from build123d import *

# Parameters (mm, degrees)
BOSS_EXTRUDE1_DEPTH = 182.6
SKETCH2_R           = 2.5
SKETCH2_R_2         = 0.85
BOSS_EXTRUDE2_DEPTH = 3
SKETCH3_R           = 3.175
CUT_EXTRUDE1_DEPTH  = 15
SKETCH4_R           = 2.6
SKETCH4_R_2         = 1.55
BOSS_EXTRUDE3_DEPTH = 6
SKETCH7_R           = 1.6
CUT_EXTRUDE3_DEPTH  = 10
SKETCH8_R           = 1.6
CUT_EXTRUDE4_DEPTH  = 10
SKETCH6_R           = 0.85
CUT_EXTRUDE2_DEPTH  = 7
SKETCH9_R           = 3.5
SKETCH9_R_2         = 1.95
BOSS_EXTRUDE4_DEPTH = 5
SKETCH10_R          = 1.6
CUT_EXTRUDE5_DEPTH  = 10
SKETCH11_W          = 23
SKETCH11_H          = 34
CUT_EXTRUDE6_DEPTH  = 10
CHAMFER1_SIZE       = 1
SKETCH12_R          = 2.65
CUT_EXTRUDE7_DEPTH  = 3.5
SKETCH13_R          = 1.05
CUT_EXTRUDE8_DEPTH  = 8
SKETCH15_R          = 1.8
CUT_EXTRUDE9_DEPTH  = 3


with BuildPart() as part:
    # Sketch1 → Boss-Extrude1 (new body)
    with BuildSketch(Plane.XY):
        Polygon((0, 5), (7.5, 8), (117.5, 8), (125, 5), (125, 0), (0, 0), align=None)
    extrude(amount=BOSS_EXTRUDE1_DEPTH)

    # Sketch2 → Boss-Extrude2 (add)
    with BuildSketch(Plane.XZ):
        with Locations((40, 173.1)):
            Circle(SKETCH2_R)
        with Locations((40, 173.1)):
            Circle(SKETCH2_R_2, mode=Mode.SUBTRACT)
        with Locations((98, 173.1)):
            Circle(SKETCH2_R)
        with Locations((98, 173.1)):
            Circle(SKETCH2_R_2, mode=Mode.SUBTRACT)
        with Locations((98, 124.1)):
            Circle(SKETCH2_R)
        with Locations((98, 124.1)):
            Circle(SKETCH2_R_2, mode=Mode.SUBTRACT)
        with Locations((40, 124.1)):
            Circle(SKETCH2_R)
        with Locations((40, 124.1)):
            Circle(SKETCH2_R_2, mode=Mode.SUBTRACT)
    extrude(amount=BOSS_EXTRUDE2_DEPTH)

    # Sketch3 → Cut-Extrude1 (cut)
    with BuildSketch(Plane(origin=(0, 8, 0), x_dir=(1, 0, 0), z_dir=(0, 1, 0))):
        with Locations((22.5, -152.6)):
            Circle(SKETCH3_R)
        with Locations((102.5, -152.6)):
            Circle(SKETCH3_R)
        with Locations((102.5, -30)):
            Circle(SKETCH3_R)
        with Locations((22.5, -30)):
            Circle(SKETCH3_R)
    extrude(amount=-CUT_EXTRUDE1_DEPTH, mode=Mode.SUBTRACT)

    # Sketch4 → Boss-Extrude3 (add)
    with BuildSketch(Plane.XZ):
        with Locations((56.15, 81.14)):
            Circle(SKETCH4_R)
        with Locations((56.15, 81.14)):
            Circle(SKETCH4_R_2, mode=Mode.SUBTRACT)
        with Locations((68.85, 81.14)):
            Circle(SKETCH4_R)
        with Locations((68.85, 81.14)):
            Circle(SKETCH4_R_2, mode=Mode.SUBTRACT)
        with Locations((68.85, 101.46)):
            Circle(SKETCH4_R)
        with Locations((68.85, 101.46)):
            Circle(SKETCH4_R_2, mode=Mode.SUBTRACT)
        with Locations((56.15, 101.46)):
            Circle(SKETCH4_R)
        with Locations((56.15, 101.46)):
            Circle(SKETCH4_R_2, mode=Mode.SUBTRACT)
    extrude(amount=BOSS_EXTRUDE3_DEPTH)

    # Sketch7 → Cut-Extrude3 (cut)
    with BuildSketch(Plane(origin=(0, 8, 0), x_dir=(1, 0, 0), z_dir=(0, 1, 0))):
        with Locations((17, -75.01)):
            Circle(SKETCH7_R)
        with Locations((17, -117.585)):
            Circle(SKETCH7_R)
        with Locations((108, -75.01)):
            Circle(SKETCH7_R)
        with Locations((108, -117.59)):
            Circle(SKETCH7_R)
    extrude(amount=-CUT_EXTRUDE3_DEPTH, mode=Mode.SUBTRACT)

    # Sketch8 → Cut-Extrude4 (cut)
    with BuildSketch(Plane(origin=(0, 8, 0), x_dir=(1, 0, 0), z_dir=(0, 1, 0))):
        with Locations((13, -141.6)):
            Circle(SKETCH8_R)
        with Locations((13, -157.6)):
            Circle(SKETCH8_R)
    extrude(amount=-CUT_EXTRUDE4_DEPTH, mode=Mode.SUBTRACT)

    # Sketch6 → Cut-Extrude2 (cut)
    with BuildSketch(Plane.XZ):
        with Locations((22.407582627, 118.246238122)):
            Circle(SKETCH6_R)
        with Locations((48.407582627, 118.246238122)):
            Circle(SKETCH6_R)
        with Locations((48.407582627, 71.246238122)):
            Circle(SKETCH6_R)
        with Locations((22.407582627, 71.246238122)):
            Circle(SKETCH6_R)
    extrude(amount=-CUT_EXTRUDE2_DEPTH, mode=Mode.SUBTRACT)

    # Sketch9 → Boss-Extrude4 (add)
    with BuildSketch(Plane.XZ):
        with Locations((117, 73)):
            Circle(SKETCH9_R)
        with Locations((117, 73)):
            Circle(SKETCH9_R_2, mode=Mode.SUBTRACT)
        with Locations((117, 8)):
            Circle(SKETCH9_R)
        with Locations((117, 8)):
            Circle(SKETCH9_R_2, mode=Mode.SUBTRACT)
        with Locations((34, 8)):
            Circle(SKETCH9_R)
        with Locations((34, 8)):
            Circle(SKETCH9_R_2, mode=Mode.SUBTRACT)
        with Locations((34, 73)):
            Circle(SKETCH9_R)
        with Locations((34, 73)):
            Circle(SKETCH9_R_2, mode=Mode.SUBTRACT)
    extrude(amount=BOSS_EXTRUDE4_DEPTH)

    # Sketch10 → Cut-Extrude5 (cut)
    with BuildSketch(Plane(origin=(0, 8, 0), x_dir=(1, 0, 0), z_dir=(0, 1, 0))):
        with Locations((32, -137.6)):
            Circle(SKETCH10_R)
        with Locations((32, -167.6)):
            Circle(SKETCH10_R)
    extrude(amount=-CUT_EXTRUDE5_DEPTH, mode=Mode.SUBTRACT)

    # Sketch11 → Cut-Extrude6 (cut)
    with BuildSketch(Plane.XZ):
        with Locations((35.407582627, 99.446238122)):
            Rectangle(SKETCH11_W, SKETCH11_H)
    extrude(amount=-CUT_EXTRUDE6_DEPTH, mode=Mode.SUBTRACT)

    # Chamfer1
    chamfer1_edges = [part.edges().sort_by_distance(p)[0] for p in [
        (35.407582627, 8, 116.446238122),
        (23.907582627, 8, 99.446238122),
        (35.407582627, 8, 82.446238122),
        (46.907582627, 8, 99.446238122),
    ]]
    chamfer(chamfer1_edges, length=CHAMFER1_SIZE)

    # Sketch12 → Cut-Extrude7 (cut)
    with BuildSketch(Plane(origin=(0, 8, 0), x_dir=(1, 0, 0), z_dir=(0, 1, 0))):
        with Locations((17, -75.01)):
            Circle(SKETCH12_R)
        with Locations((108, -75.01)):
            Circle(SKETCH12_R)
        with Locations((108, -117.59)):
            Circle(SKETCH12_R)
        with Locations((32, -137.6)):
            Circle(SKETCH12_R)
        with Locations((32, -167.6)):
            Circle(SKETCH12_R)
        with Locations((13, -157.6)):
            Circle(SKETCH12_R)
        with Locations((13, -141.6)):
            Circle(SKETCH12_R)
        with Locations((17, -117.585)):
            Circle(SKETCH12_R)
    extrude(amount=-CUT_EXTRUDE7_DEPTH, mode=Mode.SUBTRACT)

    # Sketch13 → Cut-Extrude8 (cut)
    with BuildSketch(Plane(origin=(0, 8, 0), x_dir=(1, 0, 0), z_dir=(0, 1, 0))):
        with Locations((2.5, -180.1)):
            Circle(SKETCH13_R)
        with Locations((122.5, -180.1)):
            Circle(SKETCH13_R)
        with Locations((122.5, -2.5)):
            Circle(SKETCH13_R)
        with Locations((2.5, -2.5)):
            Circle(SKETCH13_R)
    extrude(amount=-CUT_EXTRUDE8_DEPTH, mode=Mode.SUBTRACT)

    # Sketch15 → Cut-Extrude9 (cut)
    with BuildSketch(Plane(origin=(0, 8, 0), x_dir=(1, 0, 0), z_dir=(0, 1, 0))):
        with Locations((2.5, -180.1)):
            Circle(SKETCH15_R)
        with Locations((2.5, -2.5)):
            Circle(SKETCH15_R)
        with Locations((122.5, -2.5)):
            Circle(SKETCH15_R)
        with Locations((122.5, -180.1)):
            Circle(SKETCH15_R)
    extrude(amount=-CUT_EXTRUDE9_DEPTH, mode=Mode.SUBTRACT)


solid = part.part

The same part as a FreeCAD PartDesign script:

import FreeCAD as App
import Part
import Sketcher
Q = App.Units.Quantity


def edges_at(feature, points):
    """Names of the edges that pass closest to the given points."""
    edges = feature.Shape.Edges
    near = lambda p: min(range(len(edges)), key=lambda i: edges[i].distToShape(Part.Vertex(*p))[0])
    return sorted({f"Edge{near(p) + 1}" for p in points})


def add_polygon(sketch, points):
    """Adds a closed chain of lines whose ends are joined by coincident constraints."""
    first, n = sketch.GeometryCount, len(points)
    for a, b in zip(points, points[1:] + points[:1]):
        sketch.addGeometry(Part.LineSegment(App.Vector(*a, 0), App.Vector(*b, 0)), False)
    for i in range(n):
        sketch.addConstraint(Sketcher.Constraint("Coincident", first + i, 2, first + (i + 1) % n, 1))

doc = App.newDocument("Part")
params = doc.addObject("Spreadsheet::Sheet", "Params")
for row, (alias, value) in enumerate([
    ("sketch1_width", "125 mm"),
    ("sketch1_width2", "110 mm"),
    ("sketch1_height", "5 mm"),
    ("pad1_length", "182.6 mm"),
    ("sketch2_diameter", "5 mm"),
    ("sketch2_diameter2", "1.7 mm"),
    ("pad2_length", "3 mm"),
    ("sketch3_diameter", "6.35 mm"),
    ("pocket1_length", "15 mm"),
    ("sketch4_diameter", "5.2 mm"),
    ("sketch4_diameter2", "3.1 mm"),
    ("pad3_length", "6 mm"),
    ("sketch5_diameter", "3.2 mm"),
    ("pocket2_length", "10 mm"),
    ("sketch6_diameter", "3.2 mm"),
    ("pocket3_length", "10 mm"),
    ("sketch7_diameter", "1.7 mm"),
    ("pocket4_length", "7 mm"),
    ("sketch8_diameter", "7 mm"),
    ("sketch8_diameter2", "3.9 mm"),
    ("pad4_length", "5 mm"),
    ("sketch9_diameter", "3.2 mm"),
    ("pocket5_length", "10 mm"),
    ("sketch10_width", "23 mm"),
    ("sketch10_height", "34 mm"),
    ("pocket6_length", "10 mm"),
    ("chamfer_size", "1 mm"),
    ("sketch11_diameter", "5.3 mm"),
    ("pocket7_length", "3.5 mm"),
    ("sketch12_diameter", "2.1 mm"),
    ("pocket8_length", "8 mm"),
    ("sketch13_diameter", "3.6 mm"),
    ("pocket9_length", "3 mm"),
], start=1):
    params.set(f"A{row}", alias)
    params.set(f"B{row}", "=" + value)
    params.setAlias(f"B{row}", alias)

body = doc.addObject("PartDesign::Body", "Body")

# Sketch on XY plane
sketch1 = body.newObject("Sketcher::SketchObject", "Sketch")
sketch1.AttachmentSupport = (doc.getObject("XY_Plane"), [""])
sketch1.MapMode = "FlatFace"
add_polygon(sketch1, [(7.5, 8), (0, 5), (0, 0), (125, 0), (125, 5), (117.5, 8)])  # lines 0-5
sketch1.addConstraint(Sketcher.Constraint("Vertical", 1))
sketch1.addConstraint(Sketcher.Constraint("Horizontal", 2))
sketch1.addConstraint(Sketcher.Constraint("Vertical", 3))
sketch1.addConstraint(Sketcher.Constraint("Horizontal", 5))
sketch1.addConstraint(Sketcher.Constraint("Coincident", 1, 2, -1, 1))
sketch1.addConstraint(Sketcher.Constraint("Horizontal", 0, 2, 3, 2))
sketch1.addConstraint(Sketcher.Constraint("Equal", 0, 4))
sketch1.addConstraint(Sketcher.Constraint("DistanceX", 2, 1, 2, 2, Q("125 mm")))
sketch1.addConstraint(Sketcher.Constraint("DistanceX", 5, 2, 5, 1, Q("110 mm")))
sketch1.addConstraint(Sketcher.Constraint("DistanceY", 1, 2, 1, 1, Q("5 mm")))
sketch1.addConstraint(Sketcher.Constraint("DistanceY", -1, 1, 4, 2, Q("8 mm")))
sketch1.setExpression("Constraints[13]", "Params.sketch1_width")
sketch1.setExpression("Constraints[14]", "Params.sketch1_width2")
sketch1.setExpression("Constraints[15]", "Params.sketch1_height")
pad1 = body.newObject("PartDesign::Pad", "Pad")
pad1.Profile = sketch1
pad1.setExpression("Length", "Params.pad1_length")

# Sketch on XZ plane
sketch2 = body.newObject("Sketcher::SketchObject", "Sketch001")
sketch2.AttachmentSupport = (doc.getObject("XZ_Plane"), [""])
sketch2.MapMode = "FlatFace"
sketch2.addGeometry(Part.Circle(App.Vector(40, 173.1, 0), App.Vector(0, 0, 1), 2.5), False)
sketch2.addGeometry(Part.Circle(App.Vector(40, 173.1, 0), App.Vector(0, 0, 1), 0.85), False)
sketch2.addGeometry(Part.Circle(App.Vector(98, 173.1, 0), App.Vector(0, 0, 1), 2.5), False)
sketch2.addGeometry(Part.Circle(App.Vector(98, 173.1, 0), App.Vector(0, 0, 1), 0.85), False)
sketch2.addGeometry(Part.Circle(App.Vector(98, 124.1, 0), App.Vector(0, 0, 1), 2.5), False)
sketch2.addGeometry(Part.Circle(App.Vector(98, 124.1, 0), App.Vector(0, 0, 1), 0.85), False)
sketch2.addGeometry(Part.Circle(App.Vector(40, 124.1, 0), App.Vector(0, 0, 1), 2.5), False)
sketch2.addGeometry(Part.Circle(App.Vector(40, 124.1, 0), App.Vector(0, 0, 1), 0.85), False)
sketch2.addConstraint(Sketcher.Constraint("Coincident", 1, 3, 0, 3))
sketch2.addConstraint(Sketcher.Constraint("Coincident", 3, 3, 2, 3))
sketch2.addConstraint(Sketcher.Constraint("Coincident", 5, 3, 4, 3))
sketch2.addConstraint(Sketcher.Constraint("Coincident", 7, 3, 6, 3))
sketch2.addConstraint(Sketcher.Constraint("Equal", 0, 2))
sketch2.addConstraint(Sketcher.Constraint("Equal", 1, 3))
sketch2.addConstraint(Sketcher.Constraint("Equal", 2, 4))
sketch2.addConstraint(Sketcher.Constraint("Equal", 3, 5))
sketch2.addConstraint(Sketcher.Constraint("Equal", 4, 6))
sketch2.addConstraint(Sketcher.Constraint("Equal", 5, 7))
sketch2.addConstraint(Sketcher.Constraint("Horizontal", 1, 3, 2, 3))
sketch2.addConstraint(Sketcher.Constraint("Horizontal", 5, 3, 6, 3))
sketch2.addConstraint(Sketcher.Constraint("Vertical", 3, 3, 4, 3))
sketch2.addConstraint(Sketcher.Constraint("Vertical", 1, 3, 6, 3))
sketch2.addConstraint(Sketcher.Constraint("Diameter", 0, Q("5 mm")))
sketch2.addConstraint(Sketcher.Constraint("Diameter", 1, Q("1.7 mm")))
sketch2.addConstraint(Sketcher.Constraint("DistanceX", -1, 1, 0, 3, Q("40 mm")))
sketch2.addConstraint(Sketcher.Constraint("DistanceX", -1, 1, 2, 3, Q("98 mm")))
sketch2.addConstraint(Sketcher.Constraint("DistanceY", 4, 3, 2, 3, Q("49 mm")))
sketch2.addConstraint(Sketcher.Constraint("DistanceY", -1, 1, 0, 3, Q("173.1 mm")))
sketch2.setExpression("Constraints[14]", "Params.sketch2_diameter")
sketch2.setExpression("Constraints[15]", "Params.sketch2_diameter2")
pad2 = body.newObject("PartDesign::Pad", "Pad001")
pad2.Profile = sketch2
pad2.setExpression("Length", "Params.pad2_length")

# Sketch on XZ plane
sketch3 = body.newObject("Sketcher::SketchObject", "Sketch002")
sketch3.AttachmentSupport = (doc.getObject("XZ_Plane"), [""])
sketch3.MapMode = "FlatFace"
sketch3.AttachmentOffset = App.Placement(App.Vector(0, 0, -8), App.Rotation())
sketch3.addGeometry(Part.Circle(App.Vector(22.5, 152.6, 0), App.Vector(0, 0, 1), 3.175), False)
sketch3.addGeometry(Part.Circle(App.Vector(102.5, 152.6, 0), App.Vector(0, 0, 1), 3.175), False)
sketch3.addGeometry(Part.Circle(App.Vector(102.5, 30, 0), App.Vector(0, 0, 1), 3.175), False)
sketch3.addGeometry(Part.Circle(App.Vector(22.5, 30, 0), App.Vector(0, 0, 1), 3.175), False)
sketch3.addConstraint(Sketcher.Constraint("Equal", 0, 1))
sketch3.addConstraint(Sketcher.Constraint("Equal", 1, 2))
sketch3.addConstraint(Sketcher.Constraint("Equal", 2, 3))
sketch3.addConstraint(Sketcher.Constraint("Horizontal", 0, 3, 1, 3))
sketch3.addConstraint(Sketcher.Constraint("Horizontal", 2, 3, 3, 3))
sketch3.addConstraint(Sketcher.Constraint("Vertical", 1, 3, 2, 3))
sketch3.addConstraint(Sketcher.Constraint("Vertical", 0, 3, 3, 3))
sketch3.addConstraint(Sketcher.Constraint("Diameter", 0, Q("6.35 mm")))
sketch3.addConstraint(Sketcher.Constraint("DistanceY", -1, 1, 2, 3, Q("30 mm")))
sketch3.addConstraint(Sketcher.Constraint("DistanceX", 0, 3, 1, 3, Q("80 mm")))
sketch3.addConstraint(Sketcher.Constraint("DistanceX", -1, 1, 0, 3, Q("22.5 mm")))
sketch3.addConstraint(Sketcher.Constraint("DistanceY", -1, 1, 0, 3, Q("152.6 mm")))
sketch3.setExpression("Constraints[7]", "Params.sketch3_diameter")
pocket1 = body.newObject("PartDesign::Pocket", "Pocket")
pocket1.Profile = sketch3
pocket1.setExpression("Length", "Params.pocket1_length")
pocket1.Reversed = True

# Sketch on XZ plane
sketch4 = body.newObject("Sketcher::SketchObject", "Sketch003")
sketch4.AttachmentSupport = (doc.getObject("XZ_Plane"), [""])
sketch4.MapMode = "FlatFace"
sketch4.addGeometry(Part.Circle(App.Vector(56.15, 81.14, 0), App.Vector(0, 0, 1), 2.6), False)
sketch4.addGeometry(Part.Circle(App.Vector(56.15, 81.14, 0), App.Vector(0, 0, 1), 1.55), False)
sketch4.addGeometry(Part.Circle(App.Vector(68.85, 81.14, 0), App.Vector(0, 0, 1), 2.6), False)
sketch4.addGeometry(Part.Circle(App.Vector(68.85, 81.14, 0), App.Vector(0, 0, 1), 1.55), False)
sketch4.addGeometry(Part.Circle(App.Vector(68.85, 101.46, 0), App.Vector(0, 0, 1), 2.6), False)
sketch4.addGeometry(Part.Circle(App.Vector(68.85, 101.46, 0), App.Vector(0, 0, 1), 1.55), False)
sketch4.addGeometry(Part.Circle(App.Vector(56.15, 101.46, 0), App.Vector(0, 0, 1), 2.6), False)
sketch4.addGeometry(Part.Circle(App.Vector(56.15, 101.46, 0), App.Vector(0, 0, 1), 1.55), False)
sketch4.addConstraint(Sketcher.Constraint("Coincident", 1, 3, 0, 3))
sketch4.addConstraint(Sketcher.Constraint("Coincident", 3, 3, 2, 3))
sketch4.addConstraint(Sketcher.Constraint("Coincident", 5, 3, 4, 3))
sketch4.addConstraint(Sketcher.Constraint("Coincident", 7, 3, 6, 3))
sketch4.addConstraint(Sketcher.Constraint("Equal", 0, 2))
sketch4.addConstraint(Sketcher.Constraint("Equal", 1, 3))
sketch4.addConstraint(Sketcher.Constraint("Equal", 2, 4))
sketch4.addConstraint(Sketcher.Constraint("Equal", 3, 5))
sketch4.addConstraint(Sketcher.Constraint("Equal", 4, 6))
sketch4.addConstraint(Sketcher.Constraint("Equal", 5, 7))
sketch4.addConstraint(Sketcher.Constraint("Horizontal", 1, 3, 2, 3))
sketch4.addConstraint(Sketcher.Constraint("Horizontal", 5, 3, 6, 3))
sketch4.addConstraint(Sketcher.Constraint("Vertical", 3, 3, 4, 3))
sketch4.addConstraint(Sketcher.Constraint("Vertical", 1, 3, 6, 3))
sketch4.addConstraint(Sketcher.Constraint("Diameter", 0, Q("5.2 mm")))
sketch4.addConstraint(Sketcher.Constraint("Diameter", 1, Q("3.1 mm")))
sketch4.addConstraint(Sketcher.Constraint("DistanceX", 0, 3, 2, 3, Q("12.7 mm")))
sketch4.addConstraint(Sketcher.Constraint("DistanceX", -1, 1, 0, 3, Q("56.15 mm")))
sketch4.addConstraint(Sketcher.Constraint("DistanceY", -1, 1, 0, 3, Q("81.14 mm")))
sketch4.addConstraint(Sketcher.Constraint("DistanceY", -1, 1, 4, 3, Q("101.46 mm")))
sketch4.setExpression("Constraints[14]", "Params.sketch4_diameter")
sketch4.setExpression("Constraints[15]", "Params.sketch4_diameter2")
pad3 = body.newObject("PartDesign::Pad", "Pad002")
pad3.Profile = sketch4
pad3.setExpression("Length", "Params.pad3_length")

# Sketch on XZ plane
sketch5 = body.newObject("Sketcher::SketchObject", "Sketch004")
sketch5.AttachmentSupport = (doc.getObject("XZ_Plane"), [""])
sketch5.MapMode = "FlatFace"
sketch5.AttachmentOffset = App.Placement(App.Vector(0, 0, -8), App.Rotation())
sketch5.addGeometry(Part.Circle(App.Vector(17, 75.01, 0), App.Vector(0, 0, 1), 1.6), False)
sketch5.addGeometry(Part.Circle(App.Vector(17, 117.585, 0), App.Vector(0, 0, 1), 1.6), False)
sketch5.addGeometry(Part.Circle(App.Vector(108, 75.01, 0), App.Vector(0, 0, 1), 1.6), False)
sketch5.addGeometry(Part.Circle(App.Vector(108, 117.59, 0), App.Vector(0, 0, 1), 1.6), False)
sketch5.addConstraint(Sketcher.Constraint("Equal", 0, 1))
sketch5.addConstraint(Sketcher.Constraint("Equal", 1, 2))
sketch5.addConstraint(Sketcher.Constraint("Equal", 2, 3))
sketch5.addConstraint(Sketcher.Constraint("Horizontal", 0, 3, 2, 3))
sketch5.addConstraint(Sketcher.Constraint("Vertical", 0, 3, 1, 3))
sketch5.addConstraint(Sketcher.Constraint("Vertical", 2, 3, 3, 3))
sketch5.addConstraint(Sketcher.Constraint("Diameter", 0, Q("3.2 mm")))
sketch5.addConstraint(Sketcher.Constraint("DistanceX", -1, 1, 0, 3, Q("17 mm")))
sketch5.addConstraint(Sketcher.Constraint("DistanceX", -1, 1, 2, 3, Q("108 mm")))
sketch5.addConstraint(Sketcher.Constraint("DistanceY", -1, 1, 0, 3, Q("75.01 mm")))
sketch5.addConstraint(Sketcher.Constraint("DistanceY", -1, 1, 3, 3, Q("117.59 mm")))
sketch5.addConstraint(Sketcher.Constraint("DistanceY", -1, 1, 1, 3, Q("117.585 mm")))
sketch5.setExpression("Constraints[6]", "Params.sketch5_diameter")
pocket2 = body.newObject("PartDesign::Pocket", "Pocket001")
pocket2.Profile = sketch5
pocket2.setExpression("Length", "Params.pocket2_length")
pocket2.Reversed = True

# Sketch on XZ plane
sketch6 = body.newObject("Sketcher::SketchObject", "Sketch005")
sketch6.AttachmentSupport = (doc.getObject("XZ_Plane"), [""])
sketch6.MapMode = "FlatFace"
sketch6.AttachmentOffset = App.Placement(App.Vector(0, 0, -8), App.Rotation())
sketch6.addGeometry(Part.Circle(App.Vector(13, 141.6, 0), App.Vector(0, 0, 1), 1.6), False)
sketch6.addGeometry(Part.Circle(App.Vector(13, 157.6, 0), App.Vector(0, 0, 1), 1.6), False)
sketch6.addConstraint(Sketcher.Constraint("Equal", 0, 1))
sketch6.addConstraint(Sketcher.Constraint("Vertical", 0, 3, 1, 3))
sketch6.addConstraint(Sketcher.Constraint("Diameter", 0, Q("3.2 mm")))
sketch6.addConstraint(Sketcher.Constraint("DistanceX", -1, 1, 0, 3, Q("13 mm")))
sketch6.addConstraint(Sketcher.Constraint("DistanceY", 0, 3, 1, 3, Q("16 mm")))
sketch6.addConstraint(Sketcher.Constraint("DistanceY", -1, 1, 0, 3, Q("141.6 mm")))
sketch6.setExpression("Constraints[2]", "Params.sketch6_diameter")
pocket3 = body.newObject("PartDesign::Pocket", "Pocket002")
pocket3.Profile = sketch6
pocket3.setExpression("Length", "Params.pocket3_length")
pocket3.Reversed = True

# Sketch on XZ plane
sketch7 = body.newObject("Sketcher::SketchObject", "Sketch006")
sketch7.AttachmentSupport = (doc.getObject("XZ_Plane"), [""])
sketch7.MapMode = "FlatFace"
sketch7.addGeometry(Part.Circle(App.Vector(22.407583, 118.246238, 0), App.Vector(0, 0, 1), 0.85), False)
sketch7.addGeometry(Part.Circle(App.Vector(48.407583, 118.246238, 0), App.Vector(0, 0, 1), 0.85), False)
sketch7.addGeometry(Part.Circle(App.Vector(48.407583, 71.246238, 0), App.Vector(0, 0, 1), 0.85), False)
sketch7.addGeometry(Part.Circle(App.Vector(22.407583, 71.246238, 0), App.Vector(0, 0, 1), 0.85), False)
sketch7.addConstraint(Sketcher.Constraint("Equal", 0, 1))
sketch7.addConstraint(Sketcher.Constraint("Equal", 1, 2))
sketch7.addConstraint(Sketcher.Constraint("Equal", 2, 3))
sketch7.addConstraint(Sketcher.Constraint("Horizontal", 0, 3, 1, 3))
sketch7.addConstraint(Sketcher.Constraint("Horizontal", 2, 3, 3, 3))
sketch7.addConstraint(Sketcher.Constraint("Vertical", 1, 3, 2, 3))
sketch7.addConstraint(Sketcher.Constraint("Vertical", 0, 3, 3, 3))
sketch7.addConstraint(Sketcher.Constraint("Diameter", 0, Q("1.7 mm")))
sketch7.addConstraint(Sketcher.Constraint("DistanceX", 0, 3, 1, 3, Q("26 mm")))
sketch7.addConstraint(Sketcher.Constraint("DistanceY", 2, 3, 1, 3, Q("47 mm")))
sketch7.addConstraint(Sketcher.Constraint("DistanceY", -1, 1, 0, 3, Q("118.246238 mm")))
sketch7.addConstraint(Sketcher.Constraint("DistanceX", -1, 1, 0, 3, Q("22.407583 mm")))
sketch7.setExpression("Constraints[7]", "Params.sketch7_diameter")
pocket4 = body.newObject("PartDesign::Pocket", "Pocket003")
pocket4.Profile = sketch7
pocket4.setExpression("Length", "Params.pocket4_length")

# Sketch on XZ plane
sketch8 = body.newObject("Sketcher::SketchObject", "Sketch007")
sketch8.AttachmentSupport = (doc.getObject("XZ_Plane"), [""])
sketch8.MapMode = "FlatFace"
sketch8.addGeometry(Part.Circle(App.Vector(117, 73, 0), App.Vector(0, 0, 1), 3.5), False)
sketch8.addGeometry(Part.Circle(App.Vector(117, 73, 0), App.Vector(0, 0, 1), 1.95), False)
sketch8.addGeometry(Part.Circle(App.Vector(117, 8, 0), App.Vector(0, 0, 1), 3.5), False)
sketch8.addGeometry(Part.Circle(App.Vector(117, 8, 0), App.Vector(0, 0, 1), 1.95), False)
sketch8.addGeometry(Part.Circle(App.Vector(34, 8, 0), App.Vector(0, 0, 1), 3.5), False)
sketch8.addGeometry(Part.Circle(App.Vector(34, 8, 0), App.Vector(0, 0, 1), 1.95), False)
sketch8.addGeometry(Part.Circle(App.Vector(34, 73, 0), App.Vector(0, 0, 1), 3.5), False)
sketch8.addGeometry(Part.Circle(App.Vector(34, 73, 0), App.Vector(0, 0, 1), 1.95), False)
sketch8.addConstraint(Sketcher.Constraint("Coincident", 1, 3, 0, 3))
sketch8.addConstraint(Sketcher.Constraint("Coincident", 3, 3, 2, 3))
sketch8.addConstraint(Sketcher.Constraint("Coincident", 5, 3, 4, 3))
sketch8.addConstraint(Sketcher.Constraint("Coincident", 7, 3, 6, 3))
sketch8.addConstraint(Sketcher.Constraint("Equal", 0, 2))
sketch8.addConstraint(Sketcher.Constraint("Equal", 1, 3))
sketch8.addConstraint(Sketcher.Constraint("Equal", 2, 4))
sketch8.addConstraint(Sketcher.Constraint("Equal", 3, 5))
sketch8.addConstraint(Sketcher.Constraint("Equal", 4, 6))
sketch8.addConstraint(Sketcher.Constraint("Equal", 5, 7))
sketch8.addConstraint(Sketcher.Constraint("Horizontal", 3, 3, 4, 3))
sketch8.addConstraint(Sketcher.Constraint("Horizontal", 1, 3, 6, 3))
sketch8.addConstraint(Sketcher.Constraint("Vertical", 1, 3, 2, 3))
sketch8.addConstraint(Sketcher.Constraint("Vertical", 5, 3, 6, 3))
sketch8.addConstraint(Sketcher.Constraint("Diameter", 0, Q("7 mm")))
sketch8.addConstraint(Sketcher.Constraint("Diameter", 1, Q("3.9 mm")))
sketch8.addConstraint(Sketcher.Constraint("DistanceX", -1, 1, 0, 3, Q("117 mm")))
sketch8.addConstraint(Sketcher.Constraint("DistanceY", -1, 1, 0, 3, Q("73 mm")))
sketch8.addConstraint(Sketcher.Constraint("DistanceY", -1, 1, 2, 3, Q("8 mm")))
sketch8.addConstraint(Sketcher.Constraint("DistanceX", -1, 1, 4, 3, Q("34 mm")))
sketch8.setExpression("Constraints[14]", "Params.sketch8_diameter")
sketch8.setExpression("Constraints[15]", "Params.sketch8_diameter2")
pad4 = body.newObject("PartDesign::Pad", "Pad003")
pad4.Profile = sketch8
pad4.setExpression("Length", "Params.pad4_length")

# Sketch on XZ plane
sketch9 = body.newObject("Sketcher::SketchObject", "Sketch008")
sketch9.AttachmentSupport = (doc.getObject("XZ_Plane"), [""])
sketch9.MapMode = "FlatFace"
sketch9.AttachmentOffset = App.Placement(App.Vector(0, 0, -8), App.Rotation())
sketch9.addGeometry(Part.Circle(App.Vector(32, 137.6, 0), App.Vector(0, 0, 1), 1.6), False)
sketch9.addGeometry(Part.Circle(App.Vector(32, 167.6, 0), App.Vector(0, 0, 1), 1.6), False)
sketch9.addConstraint(Sketcher.Constraint("Equal", 0, 1))
sketch9.addConstraint(Sketcher.Constraint("Vertical", 0, 3, 1, 3))
sketch9.addConstraint(Sketcher.Constraint("Diameter", 0, Q("3.2 mm")))
sketch9.addConstraint(Sketcher.Constraint("DistanceX", -1, 1, 0, 3, Q("32 mm")))
sketch9.addConstraint(Sketcher.Constraint("DistanceY", 0, 3, 1, 3, Q("30 mm")))
sketch9.addConstraint(Sketcher.Constraint("DistanceY", -1, 1, 0, 3, Q("137.6 mm")))
sketch9.setExpression("Constraints[2]", "Params.sketch9_diameter")
pocket5 = body.newObject("PartDesign::Pocket", "Pocket004")
pocket5.Profile = sketch9
pocket5.setExpression("Length", "Params.pocket5_length")
pocket5.Reversed = True

# Sketch on XZ plane
sketch10 = body.newObject("Sketcher::SketchObject", "Sketch009")
sketch10.AttachmentSupport = (doc.getObject("XZ_Plane"), [""])
sketch10.MapMode = "FlatFace"
add_polygon(sketch10, [(23.907583, 116.446238), (23.907583, 82.446238), (46.907583, 82.446238), (46.907583, 116.446238)])  # lines 0-3
sketch10.addConstraint(Sketcher.Constraint("Vertical", 0))
sketch10.addConstraint(Sketcher.Constraint("Horizontal", 1))
sketch10.addConstraint(Sketcher.Constraint("Vertical", 2))
sketch10.addConstraint(Sketcher.Constraint("Horizontal", 3))
sketch10.addConstraint(Sketcher.Constraint("DistanceX", 1, 1, 1, 2, Q("23 mm")))
sketch10.addConstraint(Sketcher.Constraint("DistanceY", 0, 2, 0, 1, Q("34 mm")))
sketch10.addConstraint(Sketcher.Constraint("DistanceY", -1, 1, 0, 2, Q("82.446238 mm")))
sketch10.addConstraint(Sketcher.Constraint("DistanceX", -1, 1, 0, 2, Q("23.907583 mm")))
sketch10.setExpression("Constraints[8]", "Params.sketch10_width")
sketch10.setExpression("Constraints[9]", "Params.sketch10_height")
pocket6 = body.newObject("PartDesign::Pocket", "Pocket005")
pocket6.Profile = sketch10
pocket6.setExpression("Length", "Params.pocket6_length")
doc.recompute()

chamfer = body.newObject("PartDesign::Chamfer", "Chamfer")
chamfer.Base = (pocket6, edges_at(pocket6, [
    (35.408, 8, 116.446),
    (23.908, 8, 99.446),
    (35.408, 8, 82.446),
    (46.908, 8, 99.446),
]))
chamfer.setExpression("Size", "Params.chamfer_size")

# Sketch on XZ plane
sketch11 = body.newObject("Sketcher::SketchObject", "Sketch010")
sketch11.AttachmentSupport = (doc.getObject("XZ_Plane"), [""])
sketch11.MapMode = "FlatFace"
sketch11.AttachmentOffset = App.Placement(App.Vector(0, 0, -8), App.Rotation())
sketch11.addGeometry(Part.Circle(App.Vector(17, 75.01, 0), App.Vector(0, 0, 1), 2.65), False)
sketch11.addGeometry(Part.Circle(App.Vector(108, 75.01, 0), App.Vector(0, 0, 1), 2.65), False)
sketch11.addGeometry(Part.Circle(App.Vector(108, 117.59, 0), App.Vector(0, 0, 1), 2.65), False)
sketch11.addGeometry(Part.Circle(App.Vector(32, 137.6, 0), App.Vector(0, 0, 1), 2.65), False)
sketch11.addGeometry(Part.Circle(App.Vector(32, 167.6, 0), App.Vector(0, 0, 1), 2.65), False)
sketch11.addGeometry(Part.Circle(App.Vector(13, 157.6, 0), App.Vector(0, 0, 1), 2.65), False)
sketch11.addGeometry(Part.Circle(App.Vector(13, 141.6, 0), App.Vector(0, 0, 1), 2.65), False)
sketch11.addGeometry(Part.Circle(App.Vector(17, 117.585, 0), App.Vector(0, 0, 1), 2.65), False)
sketch11.addConstraint(Sketcher.Constraint("Equal", 0, 1))
sketch11.addConstraint(Sketcher.Constraint("Equal", 1, 2))
sketch11.addConstraint(Sketcher.Constraint("Equal", 2, 3))
sketch11.addConstraint(Sketcher.Constraint("Equal", 3, 4))
sketch11.addConstraint(Sketcher.Constraint("Equal", 4, 5))
sketch11.addConstraint(Sketcher.Constraint("Equal", 5, 6))
sketch11.addConstraint(Sketcher.Constraint("Equal", 6, 7))
sketch11.addConstraint(Sketcher.Constraint("Horizontal", 0, 3, 1, 3))
sketch11.addConstraint(Sketcher.Constraint("Vertical", 1, 3, 2, 3))
sketch11.addConstraint(Sketcher.Constraint("Vertical", 3, 3, 4, 3))
sketch11.addConstraint(Sketcher.Constraint("Vertical", 5, 3, 6, 3))
sketch11.addConstraint(Sketcher.Constraint("Vertical", 0, 3, 7, 3))
sketch11.addConstraint(Sketcher.Constraint("Diameter", 0, Q("5.3 mm")))
sketch11.addConstraint(Sketcher.Constraint("DistanceX", -1, 1, 0, 3, Q("17 mm")))
sketch11.addConstraint(Sketcher.Constraint("DistanceX", -1, 1, 1, 3, Q("108 mm")))
sketch11.addConstraint(Sketcher.Constraint("DistanceX", -1, 1, 3, 3, Q("32 mm")))
sketch11.addConstraint(Sketcher.Constraint("DistanceX", -1, 1, 5, 3, Q("13 mm")))
sketch11.addConstraint(Sketcher.Constraint("DistanceY", 3, 3, 4, 3, Q("30 mm")))
sketch11.addConstraint(Sketcher.Constraint("DistanceY", 5, 3, 4, 3, Q("10 mm")))
sketch11.addConstraint(Sketcher.Constraint("DistanceY", 6, 3, 5, 3, Q("16 mm")))
sketch11.addConstraint(Sketcher.Constraint("DistanceY", -1, 1, 3, 3, Q("137.6 mm")))
sketch11.addConstraint(Sketcher.Constraint("DistanceY", -1, 1, 0, 3, Q("75.01 mm")))
sketch11.addConstraint(Sketcher.Constraint("DistanceY", -1, 1, 2, 3, Q("117.59 mm")))
sketch11.addConstraint(Sketcher.Constraint("DistanceY", -1, 1, 7, 3, Q("117.585 mm")))
sketch11.setExpression("Constraints[12]", "Params.sketch11_diameter")
pocket7 = body.newObject("PartDesign::Pocket", "Pocket006")
pocket7.Profile = sketch11
pocket7.setExpression("Length", "Params.pocket7_length")
pocket7.Reversed = True

# Sketch on XZ plane
sketch12 = body.newObject("Sketcher::SketchObject", "Sketch011")
sketch12.AttachmentSupport = (doc.getObject("XZ_Plane"), [""])
sketch12.MapMode = "FlatFace"
sketch12.AttachmentOffset = App.Placement(App.Vector(0, 0, -8), App.Rotation())
sketch12.addGeometry(Part.Circle(App.Vector(2.5, 180.1, 0), App.Vector(0, 0, 1), 1.05), False)
sketch12.addGeometry(Part.Circle(App.Vector(122.5, 180.1, 0), App.Vector(0, 0, 1), 1.05), False)
sketch12.addGeometry(Part.Circle(App.Vector(122.5, 2.5, 0), App.Vector(0, 0, 1), 1.05), False)
sketch12.addGeometry(Part.Circle(App.Vector(2.5, 2.5, 0), App.Vector(0, 0, 1), 1.05), False)
sketch12.addConstraint(Sketcher.Constraint("Equal", 0, 1))
sketch12.addConstraint(Sketcher.Constraint("Equal", 1, 2))
sketch12.addConstraint(Sketcher.Constraint("Equal", 2, 3))
sketch12.addConstraint(Sketcher.Constraint("Horizontal", 0, 3, 1, 3))
sketch12.addConstraint(Sketcher.Constraint("Horizontal", 2, 3, 3, 3))
sketch12.addConstraint(Sketcher.Constraint("Vertical", 1, 3, 2, 3))
sketch12.addConstraint(Sketcher.Constraint("Vertical", 0, 3, 3, 3))
sketch12.addConstraint(Sketcher.Constraint("Diameter", 0, Q("2.1 mm")))
sketch12.addConstraint(Sketcher.Constraint("DistanceX", 0, 3, 1, 3, Q("120 mm")))
sketch12.addConstraint(Sketcher.Constraint("DistanceX", -1, 1, 0, 3, Q("2.5 mm")))
sketch12.addConstraint(Sketcher.Constraint("DistanceY", -1, 1, 0, 3, Q("180.1 mm")))
sketch12.addConstraint(Sketcher.Constraint("DistanceY", -1, 1, 2, 3, Q("2.5 mm")))
sketch12.setExpression("Constraints[7]", "Params.sketch12_diameter")
pocket8 = body.newObject("PartDesign::Pocket", "Pocket007")
pocket8.Profile = sketch12
pocket8.setExpression("Length", "Params.pocket8_length")
pocket8.Reversed = True

# Sketch on XZ plane
sketch13 = body.newObject("Sketcher::SketchObject", "Sketch012")
sketch13.AttachmentSupport = (doc.getObject("XZ_Plane"), [""])
sketch13.MapMode = "FlatFace"
sketch13.AttachmentOffset = App.Placement(App.Vector(0, 0, -8), App.Rotation())
sketch13.addGeometry(Part.Circle(App.Vector(2.5, 180.1, 0), App.Vector(0, 0, 1), 1.8), False)
sketch13.addGeometry(Part.Circle(App.Vector(2.5, 2.5, 0), App.Vector(0, 0, 1), 1.8), False)
sketch13.addGeometry(Part.Circle(App.Vector(122.5, 2.5, 0), App.Vector(0, 0, 1), 1.8), False)
sketch13.addGeometry(Part.Circle(App.Vector(122.5, 180.1, 0), App.Vector(0, 0, 1), 1.8), False)
sketch13.addConstraint(Sketcher.Constraint("Equal", 0, 1))
sketch13.addConstraint(Sketcher.Constraint("Equal", 1, 2))
sketch13.addConstraint(Sketcher.Constraint("Equal", 2, 3))
sketch13.addConstraint(Sketcher.Constraint("Horizontal", 1, 3, 2, 3))
sketch13.addConstraint(Sketcher.Constraint("Horizontal", 0, 3, 3, 3))
sketch13.addConstraint(Sketcher.Constraint("Vertical", 0, 3, 1, 3))
sketch13.addConstraint(Sketcher.Constraint("Vertical", 2, 3, 3, 3))
sketch13.addConstraint(Sketcher.Constraint("Diameter", 0, Q("3.6 mm")))
sketch13.addConstraint(Sketcher.Constraint("DistanceX", 1, 3, 2, 3, Q("120 mm")))
sketch13.addConstraint(Sketcher.Constraint("DistanceX", -1, 1, 0, 3, Q("2.5 mm")))
sketch13.addConstraint(Sketcher.Constraint("DistanceY", -1, 1, 0, 3, Q("180.1 mm")))
sketch13.addConstraint(Sketcher.Constraint("DistanceY", -1, 1, 1, 3, Q("2.5 mm")))
sketch13.setExpression("Constraints[7]", "Params.sketch13_diameter")
pocket9 = body.newObject("PartDesign::Pocket", "Pocket008")
pocket9.Profile = sketch13
pocket9.setExpression("Length", "Params.pocket9_length")
pocket9.Reversed = True

doc.recompute()
